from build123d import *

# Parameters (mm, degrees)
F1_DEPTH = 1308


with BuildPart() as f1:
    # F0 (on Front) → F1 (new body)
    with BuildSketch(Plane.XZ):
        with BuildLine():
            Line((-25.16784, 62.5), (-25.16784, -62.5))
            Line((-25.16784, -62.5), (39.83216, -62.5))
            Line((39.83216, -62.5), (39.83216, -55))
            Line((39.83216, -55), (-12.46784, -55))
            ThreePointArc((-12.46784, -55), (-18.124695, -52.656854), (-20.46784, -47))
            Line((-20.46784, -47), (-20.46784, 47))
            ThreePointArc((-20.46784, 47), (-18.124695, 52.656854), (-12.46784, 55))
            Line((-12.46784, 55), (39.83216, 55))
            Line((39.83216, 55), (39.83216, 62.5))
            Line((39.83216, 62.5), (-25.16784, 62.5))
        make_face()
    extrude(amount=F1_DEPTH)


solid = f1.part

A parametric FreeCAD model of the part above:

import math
import FreeCAD as App
import Part
import Sketcher

doc = App.newDocument("Part")
body = doc.addObject("PartDesign::Body", "Body")

sketch1 = body.newObject("Sketcher::SketchObject", "Sketch")
sketch1.AttachmentSupport = (doc.getObject("XZ_Plane"), [""])
sketch1.MapMode = "FlatFace"
sketch1.addGeometry([
    Part.LineSegment(App.Vector(-25, 62, 0), App.Vector(-25, -62, 0)),
    Part.LineSegment(App.Vector(-25, -62, 0), App.Vector(40, -62, 0)),
    Part.LineSegment(App.Vector(40, -62, 0), App.Vector(40, -55, 0)),
    Part.LineSegment(App.Vector(40, -55, 0), App.Vector(-12, -55, 0)),
    Part.ArcOfCircle(Part.Circle(App.Vector(-12, -47, 0), App.Vector(0, 0, 1), 8), math.radians(180), math.radians(270)),
    Part.LineSegment(App.Vector(-20, -47, 0), App.Vector(-20, 47, 0)),
    Part.ArcOfCircle(Part.Circle(App.Vector(-12, 47, 0), App.Vector(0, 0, 1), 8), math.radians(90), math.radians(180)),
    Part.LineSegment(App.Vector(-12, 55, 0), App.Vector(40, 55, 0)),
    Part.LineSegment(App.Vector(40, 55, 0), App.Vector(40, 62, 0)),
    Part.LineSegment(App.Vector(40, 62, 0), App.Vector(-25, 62, 0)),
], False)
sketch1.addConstraint([
    Sketcher.Constraint("Coincident", 0, 2, 1, 1),
    Sketcher.Constraint("Coincident", 1, 2, 2, 1),
    Sketcher.Constraint("Coincident", 2, 2, 3, 1),
    Sketcher.Constraint("Tangent", 3, 2, 4, 2),
    Sketcher.Constraint("Tangent", 4, 1, 5, 1),
    Sketcher.Constraint("Tangent", 5, 2, 6, 2),
    Sketcher.Constraint("Tangent", 6, 1, 7, 1),
    Sketcher.Constraint("Coincident", 7, 2, 8, 1),
    Sketcher.Constraint("Coincident", 8, 2, 9, 1),
    Sketcher.Constraint("Coincident", 9, 2, 0, 1),
    Sketcher.Constraint("Vertical", 0),
    Sketcher.Constraint("Horizontal", 1),
    Sketcher.Constraint("Vertical", 2),
    Sketcher.Constraint("Horizontal", 3),
    Sketcher.Constraint("Vertical", 5),
    Sketcher.Constraint("Horizontal", 7),
    Sketcher.Constraint("Vertical", 8),
    Sketcher.Constraint("Horizontal", 9),
    Sketcher.Constraint("Equal", 4, 6),
    Sketcher.Constraint("Symmetric", 2, 2, 7, 2, -1),
    Sketcher.Constraint("Equal", 2, 8),
    Sketcher.Constraint("Radius", 4, 7.999999),
    Sketcher.Constraint("DistanceX", 1, 1, 1, 2, 65.0),
    Sketcher.Constraint("DistanceY", 0, 2, 0, 1, 125.0),
    Sketcher.Constraint("DistanceY", 5, 1, 5, 2, 94.0),
    Sketcher.Constraint("DistanceX", 3, 2, 3, 1, 52.3),
    Sketcher.Constraint("DistanceX", 4, 3, -1, 1, 12.467841),
])
pad1 = body.newObject("PartDesign::Pad", "Pad")
pad1.Profile = sketch1
pad1.Length = 1308

doc.recompute()
